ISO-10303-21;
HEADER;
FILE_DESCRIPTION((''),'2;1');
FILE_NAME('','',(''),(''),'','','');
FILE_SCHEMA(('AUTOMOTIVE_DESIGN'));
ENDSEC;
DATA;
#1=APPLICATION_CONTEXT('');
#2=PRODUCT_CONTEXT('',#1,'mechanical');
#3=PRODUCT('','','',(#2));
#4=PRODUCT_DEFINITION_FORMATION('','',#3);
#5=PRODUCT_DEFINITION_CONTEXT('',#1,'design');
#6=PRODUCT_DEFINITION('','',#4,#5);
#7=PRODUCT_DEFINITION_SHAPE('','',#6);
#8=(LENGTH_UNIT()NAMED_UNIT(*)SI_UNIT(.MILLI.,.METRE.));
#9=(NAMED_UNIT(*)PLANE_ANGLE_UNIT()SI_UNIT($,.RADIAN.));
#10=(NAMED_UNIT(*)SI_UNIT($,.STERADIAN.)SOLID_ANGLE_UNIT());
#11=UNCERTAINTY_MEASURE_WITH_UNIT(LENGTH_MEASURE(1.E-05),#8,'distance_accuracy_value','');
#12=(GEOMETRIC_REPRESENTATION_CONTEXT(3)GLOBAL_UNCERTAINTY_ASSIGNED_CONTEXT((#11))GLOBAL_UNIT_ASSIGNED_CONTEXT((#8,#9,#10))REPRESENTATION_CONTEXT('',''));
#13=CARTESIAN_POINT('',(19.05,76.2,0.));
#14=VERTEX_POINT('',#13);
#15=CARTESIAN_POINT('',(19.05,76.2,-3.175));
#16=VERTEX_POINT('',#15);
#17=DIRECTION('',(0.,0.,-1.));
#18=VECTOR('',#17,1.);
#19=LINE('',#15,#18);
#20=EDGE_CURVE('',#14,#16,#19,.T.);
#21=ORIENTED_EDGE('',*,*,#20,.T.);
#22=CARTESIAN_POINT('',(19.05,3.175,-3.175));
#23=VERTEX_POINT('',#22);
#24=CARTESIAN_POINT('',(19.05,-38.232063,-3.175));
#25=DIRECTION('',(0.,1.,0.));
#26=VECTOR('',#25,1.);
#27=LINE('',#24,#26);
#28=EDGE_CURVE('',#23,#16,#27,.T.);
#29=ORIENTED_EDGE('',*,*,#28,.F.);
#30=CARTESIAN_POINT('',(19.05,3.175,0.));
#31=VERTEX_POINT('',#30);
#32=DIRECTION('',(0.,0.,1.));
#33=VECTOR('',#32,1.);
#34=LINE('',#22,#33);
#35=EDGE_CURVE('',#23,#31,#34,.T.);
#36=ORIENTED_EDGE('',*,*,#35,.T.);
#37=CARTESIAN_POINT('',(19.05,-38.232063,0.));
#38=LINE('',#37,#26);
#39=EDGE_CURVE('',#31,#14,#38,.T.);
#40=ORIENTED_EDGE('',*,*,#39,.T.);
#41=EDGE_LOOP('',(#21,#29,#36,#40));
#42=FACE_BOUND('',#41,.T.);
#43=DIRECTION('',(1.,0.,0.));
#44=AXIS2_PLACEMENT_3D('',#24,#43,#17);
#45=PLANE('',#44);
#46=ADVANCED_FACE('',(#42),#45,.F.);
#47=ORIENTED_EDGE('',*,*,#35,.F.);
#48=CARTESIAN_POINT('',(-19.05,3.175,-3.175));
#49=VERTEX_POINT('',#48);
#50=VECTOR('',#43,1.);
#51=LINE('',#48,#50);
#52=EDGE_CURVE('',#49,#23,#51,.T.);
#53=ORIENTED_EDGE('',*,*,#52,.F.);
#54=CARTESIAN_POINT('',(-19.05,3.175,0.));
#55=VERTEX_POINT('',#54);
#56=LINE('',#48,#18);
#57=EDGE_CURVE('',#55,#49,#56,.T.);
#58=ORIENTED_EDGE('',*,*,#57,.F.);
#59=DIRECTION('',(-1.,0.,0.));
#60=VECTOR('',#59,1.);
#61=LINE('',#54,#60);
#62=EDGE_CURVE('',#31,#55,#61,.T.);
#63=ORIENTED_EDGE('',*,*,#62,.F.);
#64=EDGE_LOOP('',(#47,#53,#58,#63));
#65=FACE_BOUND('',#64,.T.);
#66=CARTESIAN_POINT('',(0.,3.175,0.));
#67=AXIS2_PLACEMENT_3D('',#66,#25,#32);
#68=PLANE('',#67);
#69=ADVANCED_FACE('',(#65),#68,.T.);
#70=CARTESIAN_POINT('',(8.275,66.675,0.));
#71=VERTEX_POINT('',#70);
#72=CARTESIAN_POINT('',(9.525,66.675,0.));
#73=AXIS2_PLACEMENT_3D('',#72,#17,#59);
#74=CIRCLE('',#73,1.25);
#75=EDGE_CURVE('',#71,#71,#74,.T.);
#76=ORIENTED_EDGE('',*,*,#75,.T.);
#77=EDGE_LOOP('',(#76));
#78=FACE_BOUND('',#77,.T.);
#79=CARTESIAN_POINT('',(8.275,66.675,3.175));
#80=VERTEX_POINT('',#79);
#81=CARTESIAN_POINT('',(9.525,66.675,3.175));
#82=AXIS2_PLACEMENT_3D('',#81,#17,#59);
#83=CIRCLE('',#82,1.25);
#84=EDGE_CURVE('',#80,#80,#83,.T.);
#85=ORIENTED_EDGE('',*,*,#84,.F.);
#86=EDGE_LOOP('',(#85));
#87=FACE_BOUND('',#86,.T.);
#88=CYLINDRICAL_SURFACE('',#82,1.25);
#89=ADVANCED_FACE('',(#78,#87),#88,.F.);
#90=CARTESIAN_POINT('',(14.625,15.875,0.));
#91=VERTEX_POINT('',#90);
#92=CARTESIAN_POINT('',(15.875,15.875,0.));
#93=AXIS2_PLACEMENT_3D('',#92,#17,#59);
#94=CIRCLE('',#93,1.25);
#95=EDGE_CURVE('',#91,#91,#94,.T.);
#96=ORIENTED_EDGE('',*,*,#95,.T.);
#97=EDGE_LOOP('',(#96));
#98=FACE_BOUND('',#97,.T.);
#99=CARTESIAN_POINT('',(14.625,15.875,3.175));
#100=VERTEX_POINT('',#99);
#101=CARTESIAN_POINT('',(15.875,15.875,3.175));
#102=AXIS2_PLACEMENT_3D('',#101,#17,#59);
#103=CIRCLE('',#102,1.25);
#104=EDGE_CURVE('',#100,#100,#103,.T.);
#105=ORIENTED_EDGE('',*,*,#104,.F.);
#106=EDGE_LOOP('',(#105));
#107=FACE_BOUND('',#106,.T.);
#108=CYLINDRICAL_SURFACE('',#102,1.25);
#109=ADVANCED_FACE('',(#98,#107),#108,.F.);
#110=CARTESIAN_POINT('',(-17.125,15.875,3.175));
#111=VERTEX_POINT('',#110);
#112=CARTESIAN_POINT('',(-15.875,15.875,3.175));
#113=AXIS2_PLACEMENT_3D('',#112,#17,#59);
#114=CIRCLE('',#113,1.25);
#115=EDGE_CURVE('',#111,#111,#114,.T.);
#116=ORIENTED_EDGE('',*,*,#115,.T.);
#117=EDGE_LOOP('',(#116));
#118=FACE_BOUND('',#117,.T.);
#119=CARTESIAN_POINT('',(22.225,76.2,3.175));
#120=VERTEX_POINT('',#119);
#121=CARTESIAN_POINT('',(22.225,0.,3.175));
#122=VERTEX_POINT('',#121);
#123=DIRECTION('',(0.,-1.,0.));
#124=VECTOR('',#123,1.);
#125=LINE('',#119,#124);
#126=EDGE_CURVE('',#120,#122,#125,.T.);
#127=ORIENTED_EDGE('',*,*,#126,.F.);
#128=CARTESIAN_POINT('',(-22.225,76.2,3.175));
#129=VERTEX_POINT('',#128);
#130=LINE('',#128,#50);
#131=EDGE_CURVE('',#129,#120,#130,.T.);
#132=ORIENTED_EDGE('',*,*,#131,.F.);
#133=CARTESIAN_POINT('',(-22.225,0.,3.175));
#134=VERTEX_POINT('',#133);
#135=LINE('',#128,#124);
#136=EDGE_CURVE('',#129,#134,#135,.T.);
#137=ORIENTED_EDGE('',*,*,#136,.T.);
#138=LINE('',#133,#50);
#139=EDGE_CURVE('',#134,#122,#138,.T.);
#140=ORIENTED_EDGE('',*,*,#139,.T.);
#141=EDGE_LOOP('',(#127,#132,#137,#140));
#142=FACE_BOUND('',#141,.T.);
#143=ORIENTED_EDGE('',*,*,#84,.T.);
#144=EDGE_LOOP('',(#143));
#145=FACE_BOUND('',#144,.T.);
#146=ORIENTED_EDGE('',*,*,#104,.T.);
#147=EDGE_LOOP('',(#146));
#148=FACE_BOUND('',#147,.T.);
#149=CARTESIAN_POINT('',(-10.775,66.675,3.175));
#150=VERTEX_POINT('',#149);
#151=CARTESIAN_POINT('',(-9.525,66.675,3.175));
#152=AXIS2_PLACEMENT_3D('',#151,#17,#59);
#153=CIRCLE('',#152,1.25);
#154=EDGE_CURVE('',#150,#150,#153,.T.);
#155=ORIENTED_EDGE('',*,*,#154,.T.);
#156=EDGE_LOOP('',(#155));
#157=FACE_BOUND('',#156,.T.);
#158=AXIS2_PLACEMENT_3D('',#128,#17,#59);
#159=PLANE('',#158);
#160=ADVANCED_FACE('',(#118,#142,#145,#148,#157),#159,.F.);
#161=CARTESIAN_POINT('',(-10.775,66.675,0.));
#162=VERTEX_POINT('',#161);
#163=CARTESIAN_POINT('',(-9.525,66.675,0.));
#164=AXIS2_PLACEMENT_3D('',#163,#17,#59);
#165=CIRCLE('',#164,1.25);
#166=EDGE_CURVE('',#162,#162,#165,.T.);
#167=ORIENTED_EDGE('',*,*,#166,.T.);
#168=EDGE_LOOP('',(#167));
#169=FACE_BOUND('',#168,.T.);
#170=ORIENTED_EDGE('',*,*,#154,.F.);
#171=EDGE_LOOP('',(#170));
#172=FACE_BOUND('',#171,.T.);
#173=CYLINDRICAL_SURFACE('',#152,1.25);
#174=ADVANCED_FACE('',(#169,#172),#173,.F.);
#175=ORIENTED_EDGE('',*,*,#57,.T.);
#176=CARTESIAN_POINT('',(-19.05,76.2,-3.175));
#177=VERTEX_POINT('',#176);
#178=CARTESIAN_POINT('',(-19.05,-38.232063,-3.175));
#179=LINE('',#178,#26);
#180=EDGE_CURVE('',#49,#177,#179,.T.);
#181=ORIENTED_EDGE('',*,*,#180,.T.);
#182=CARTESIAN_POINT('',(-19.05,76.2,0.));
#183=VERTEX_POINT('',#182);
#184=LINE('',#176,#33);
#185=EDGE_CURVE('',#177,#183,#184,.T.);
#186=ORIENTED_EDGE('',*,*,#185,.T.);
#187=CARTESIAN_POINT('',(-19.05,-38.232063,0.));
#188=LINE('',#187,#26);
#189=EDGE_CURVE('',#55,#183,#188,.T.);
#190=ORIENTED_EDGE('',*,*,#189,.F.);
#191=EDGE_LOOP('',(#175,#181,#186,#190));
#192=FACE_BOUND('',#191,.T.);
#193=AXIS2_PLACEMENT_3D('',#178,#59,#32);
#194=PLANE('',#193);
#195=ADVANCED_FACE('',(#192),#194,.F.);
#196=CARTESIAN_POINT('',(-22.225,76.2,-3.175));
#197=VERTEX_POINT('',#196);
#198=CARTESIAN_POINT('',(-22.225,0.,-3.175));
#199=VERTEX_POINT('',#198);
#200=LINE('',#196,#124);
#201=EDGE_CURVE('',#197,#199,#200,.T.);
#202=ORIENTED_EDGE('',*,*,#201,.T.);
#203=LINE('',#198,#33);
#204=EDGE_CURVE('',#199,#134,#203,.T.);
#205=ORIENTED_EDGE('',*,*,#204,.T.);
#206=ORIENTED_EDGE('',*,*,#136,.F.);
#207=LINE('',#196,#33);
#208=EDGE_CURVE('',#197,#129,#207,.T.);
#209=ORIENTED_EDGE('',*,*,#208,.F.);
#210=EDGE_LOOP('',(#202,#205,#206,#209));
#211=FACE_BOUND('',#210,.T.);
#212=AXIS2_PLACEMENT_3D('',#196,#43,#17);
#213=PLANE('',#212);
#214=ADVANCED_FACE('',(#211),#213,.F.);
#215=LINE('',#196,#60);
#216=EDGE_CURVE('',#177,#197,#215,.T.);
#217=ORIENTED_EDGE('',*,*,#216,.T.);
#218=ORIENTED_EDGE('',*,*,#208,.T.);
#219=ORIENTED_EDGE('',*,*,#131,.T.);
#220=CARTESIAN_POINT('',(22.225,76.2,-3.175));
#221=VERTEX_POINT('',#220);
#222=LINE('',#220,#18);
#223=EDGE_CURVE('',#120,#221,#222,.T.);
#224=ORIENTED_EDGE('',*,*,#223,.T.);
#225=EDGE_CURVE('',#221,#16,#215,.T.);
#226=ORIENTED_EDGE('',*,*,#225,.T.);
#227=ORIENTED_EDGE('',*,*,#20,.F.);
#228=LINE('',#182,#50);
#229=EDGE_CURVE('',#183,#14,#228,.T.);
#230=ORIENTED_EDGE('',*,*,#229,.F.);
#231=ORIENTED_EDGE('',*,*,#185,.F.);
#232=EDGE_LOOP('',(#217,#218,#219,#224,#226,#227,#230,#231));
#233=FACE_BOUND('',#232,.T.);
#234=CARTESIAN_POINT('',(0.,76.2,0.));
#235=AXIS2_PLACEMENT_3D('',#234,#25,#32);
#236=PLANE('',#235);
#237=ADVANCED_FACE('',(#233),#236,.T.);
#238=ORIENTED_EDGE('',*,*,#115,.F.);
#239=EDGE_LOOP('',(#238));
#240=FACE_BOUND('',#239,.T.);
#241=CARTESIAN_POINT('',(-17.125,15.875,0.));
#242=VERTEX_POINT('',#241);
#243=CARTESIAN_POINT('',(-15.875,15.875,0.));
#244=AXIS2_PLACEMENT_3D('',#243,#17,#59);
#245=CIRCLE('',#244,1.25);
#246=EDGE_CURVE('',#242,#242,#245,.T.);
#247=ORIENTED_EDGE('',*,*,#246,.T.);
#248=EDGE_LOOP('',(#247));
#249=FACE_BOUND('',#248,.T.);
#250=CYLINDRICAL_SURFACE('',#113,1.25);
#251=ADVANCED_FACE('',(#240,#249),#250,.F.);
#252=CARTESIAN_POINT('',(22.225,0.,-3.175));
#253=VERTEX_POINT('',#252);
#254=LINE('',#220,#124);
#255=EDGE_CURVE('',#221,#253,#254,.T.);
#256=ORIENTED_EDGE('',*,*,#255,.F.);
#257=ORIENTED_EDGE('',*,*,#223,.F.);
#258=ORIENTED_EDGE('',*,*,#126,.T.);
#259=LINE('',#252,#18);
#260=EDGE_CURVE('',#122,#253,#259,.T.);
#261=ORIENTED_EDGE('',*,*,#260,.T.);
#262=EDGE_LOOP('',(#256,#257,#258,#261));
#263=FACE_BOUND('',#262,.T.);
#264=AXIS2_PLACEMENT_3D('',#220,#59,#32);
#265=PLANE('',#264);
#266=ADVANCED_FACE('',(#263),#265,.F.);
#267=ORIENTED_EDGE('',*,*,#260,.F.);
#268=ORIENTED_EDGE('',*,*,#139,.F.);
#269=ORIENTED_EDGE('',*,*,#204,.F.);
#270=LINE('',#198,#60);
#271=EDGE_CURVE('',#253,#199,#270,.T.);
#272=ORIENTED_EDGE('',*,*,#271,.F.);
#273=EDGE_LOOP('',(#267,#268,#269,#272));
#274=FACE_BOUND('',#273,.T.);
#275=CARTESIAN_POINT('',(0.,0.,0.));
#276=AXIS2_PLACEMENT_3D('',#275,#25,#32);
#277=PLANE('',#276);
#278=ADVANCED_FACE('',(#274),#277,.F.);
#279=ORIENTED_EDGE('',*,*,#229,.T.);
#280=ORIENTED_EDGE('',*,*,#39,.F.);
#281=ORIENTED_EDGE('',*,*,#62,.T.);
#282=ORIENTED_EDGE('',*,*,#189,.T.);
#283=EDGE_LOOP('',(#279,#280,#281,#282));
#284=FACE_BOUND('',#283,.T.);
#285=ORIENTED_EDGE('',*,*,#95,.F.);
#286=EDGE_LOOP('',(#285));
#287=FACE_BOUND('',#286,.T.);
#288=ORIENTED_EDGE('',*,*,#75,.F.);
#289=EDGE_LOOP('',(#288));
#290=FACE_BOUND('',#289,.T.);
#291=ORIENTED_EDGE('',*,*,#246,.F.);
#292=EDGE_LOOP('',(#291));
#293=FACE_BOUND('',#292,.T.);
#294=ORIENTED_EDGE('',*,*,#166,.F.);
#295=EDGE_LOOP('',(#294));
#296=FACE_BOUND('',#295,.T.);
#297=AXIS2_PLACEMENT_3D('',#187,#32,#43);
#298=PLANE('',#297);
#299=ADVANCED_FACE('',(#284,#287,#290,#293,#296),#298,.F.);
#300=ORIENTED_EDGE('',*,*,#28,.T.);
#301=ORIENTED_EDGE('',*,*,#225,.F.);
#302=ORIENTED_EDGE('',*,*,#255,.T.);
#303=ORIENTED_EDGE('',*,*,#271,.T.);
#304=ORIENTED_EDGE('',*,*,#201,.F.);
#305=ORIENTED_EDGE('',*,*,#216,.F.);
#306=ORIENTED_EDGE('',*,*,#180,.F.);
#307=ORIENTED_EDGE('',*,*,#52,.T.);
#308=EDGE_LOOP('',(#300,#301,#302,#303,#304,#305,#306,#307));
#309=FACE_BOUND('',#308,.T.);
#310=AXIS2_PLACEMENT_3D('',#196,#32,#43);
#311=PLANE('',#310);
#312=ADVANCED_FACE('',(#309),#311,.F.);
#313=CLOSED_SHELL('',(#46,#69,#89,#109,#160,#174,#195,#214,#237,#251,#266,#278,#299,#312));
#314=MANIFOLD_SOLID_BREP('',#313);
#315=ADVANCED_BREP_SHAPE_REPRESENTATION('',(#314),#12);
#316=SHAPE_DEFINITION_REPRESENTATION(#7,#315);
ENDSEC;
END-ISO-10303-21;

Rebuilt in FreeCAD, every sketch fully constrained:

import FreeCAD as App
import Part
import Sketcher
from FreeCAD import Vector
Q = App.Units.Quantity

doc = App.newDocument("Part")
body = doc.addObject("PartDesign::Body", "Body")

sketch1 = body.newObject("Sketcher::SketchObject", "Sketch")
sketch1.AttachmentSupport = (doc.getObject("XZ_Plane"), [""])
sketch1.MapMode = "FlatFace"
sketch1.addGeometry(Part.LineSegment(Vector(-22, -3, 0), Vector(-22, 3, 0)), False)
sketch1.addGeometry(Part.LineSegment(Vector(-22, 3, 0), Vector(22, 3, 0)), False)
sketch1.addGeometry(Part.LineSegment(Vector(22, 3, 0), Vector(22, -3, 0)), False)
sketch1.addGeometry(Part.LineSegment(Vector(22, -3, 0), Vector(-22, -3, 0)), False)
sketch1.addConstraint(Sketcher.Constraint("Coincident", 0, 2, 1, 1))
sketch1.addConstraint(Sketcher.Constraint("Coincident", 1, 2, 2, 1))
sketch1.addConstraint(Sketcher.Constraint("Coincident", 2, 2, 3, 1))
sketch1.addConstraint(Sketcher.Constraint("Coincident", 3, 2, 0, 1))
sketch1.addConstraint(Sketcher.Constraint("Vertical", 0))
sketch1.addConstraint(Sketcher.Constraint("Horizontal", 1))
sketch1.addConstraint(Sketcher.Constraint("Vertical", 2))
sketch1.addConstraint(Sketcher.Constraint("Horizontal", 3))
sketch1.addConstraint(Sketcher.Constraint("Symmetric", 0, 2, 2, 2, -1, 1))
sketch1.addConstraint(Sketcher.Constraint("DistanceX", 1, 1, 1, 2, Q("1.75 in")))
sketch1.addConstraint(Sketcher.Constraint("DistanceY", 0, 1, 0, 2, Q("0.25 in")))
pad1 = body.newObject("PartDesign::Pad", "Pad")
pad1.Profile = sketch1
pad1.Length = Q("3 in")
pad1.Reversed = True

sketch2 = body.newObject("Sketcher::SketchObject", "Sketch001")
sketch2.AttachmentSupport = (doc.getObject("XZ_Plane"), [""])
sketch2.MapMode = "FlatFace"
sketch2.AttachmentOffset = App.Placement(Vector(0, 0, -3 * 25.4), App.Rotation())
sketch2.addGeometry(Part.LineSegment(Vector(-19.1, -3.2, 0), Vector(-19.1, 0, 0)), False)
sketch2.addGeometry(Part.LineSegment(Vector(-19.1, 0, 0), Vector(19.1, 0, 0)), False)
sketch2.addGeometry(Part.LineSegment(Vector(19.1, 0, 0), Vector(19.1, -3.2, 0)), False)
sketch2.addGeometry(Part.LineSegment(Vector(19.1, -3.2, 0), Vector(-19.1, -3.2, 0)), False)
sketch2.addConstraint(Sketcher.Constraint("Coincident", 0, 2, 1, 1))
sketch2.addConstraint(Sketcher.Constraint("Coincident", 1, 2, 2, 1))
sketch2.addConstraint(Sketcher.Constraint("Coincident", 2, 2, 3, 1))
sketch2.addConstraint(Sketcher.Constraint("Coincident", 3, 2, 0, 1))
sketch2.addConstraint(Sketcher.Constraint("Vertical", 0))
sketch2.addConstraint(Sketcher.Constraint("Horizontal", 1))
sketch2.addConstraint(Sketcher.Constraint("Vertical", 2))
sketch2.addConstraint(Sketcher.Constraint("Horizontal", 3))
sketch2.addConstraint(Sketcher.Constraint("Symmetric", 0, 2, 1, 2, -1, 1))
sketch2.addConstraint(Sketcher.Constraint("DistanceX", 1, 1, 1, 2, Q("1.5 in")))
sketch2.addConstraint(Sketcher.Constraint("DistanceY", 0, 1, 0, 2, Q("0.125 in")))
pocket1 = body.newObject("PartDesign::Pocket", "Pocket")
pocket1.Profile = sketch2
pocket1.Length = Q("2.875 in")
pocket1.Reversed = True

sketch3 = body.newObject("Sketcher::SketchObject", "Sketch002")
sketch3.AttachmentSupport = (doc.getObject("XY_Plane"), [""])
sketch3.MapMode = "FlatFace"
sketch3.addGeometry(Part.Circle(Vector(9.5, 66.7, 0), Vector(0, 0, 1), 1.2), False)
sketch3.addGeometry(Part.Circle(Vector(-9.5, 66.7, 0), Vector(0, 0, 1), 1.2), False)
sketch3.addGeometry(Part.Circle(Vector(15.9, 15.9, 0), Vector(0, 0, 1), 1.2), False)
sketch3.addGeometry(Part.Circle(Vector(-15.9, 15.9, 0), Vector(0, 0, 1), 1.2), False)
sketch3.addConstraint(Sketcher.Constraint("Equal", 0, 1))
sketch3.addConstraint(Sketcher.Constraint("Equal", 1, 2))
sketch3.addConstraint(Sketcher.Constraint("Equal", 2, 3))
sketch3.addConstraint(Sketcher.Constraint("Symmetric", 0, 3, 1, 3, -2))
sketch3.addConstraint(Sketcher.Constraint("Symmetric", 2, 3, 3, 3, -2))
sketch3.addConstraint(Sketcher.Constraint("DistanceY", 2, 3, 0, 3, Q("2 in")))
sketch3.addConstraint(Sketcher.Constraint("DistanceX", 1, 3, 2, 3, Q("1 in")))
sketch3.addConstraint(Sketcher.Constraint("Diameter", 0, 2.5))
sketch3.addConstraint(Sketcher.Constraint("DistanceX", 1, 3, 0, 3, Q("0.75 in")))
sketch3.addConstraint(Sketcher.Constraint("DistanceY", -1, 1, 0, 3, Q("2.625 in")))
pocket2 = body.newObject("PartDesign::Pocket", "Pocket001")
pocket2.Profile = sketch3
pocket2.Type = "ThroughAll"
pocket2.Reversed = True

doc.recompute()
